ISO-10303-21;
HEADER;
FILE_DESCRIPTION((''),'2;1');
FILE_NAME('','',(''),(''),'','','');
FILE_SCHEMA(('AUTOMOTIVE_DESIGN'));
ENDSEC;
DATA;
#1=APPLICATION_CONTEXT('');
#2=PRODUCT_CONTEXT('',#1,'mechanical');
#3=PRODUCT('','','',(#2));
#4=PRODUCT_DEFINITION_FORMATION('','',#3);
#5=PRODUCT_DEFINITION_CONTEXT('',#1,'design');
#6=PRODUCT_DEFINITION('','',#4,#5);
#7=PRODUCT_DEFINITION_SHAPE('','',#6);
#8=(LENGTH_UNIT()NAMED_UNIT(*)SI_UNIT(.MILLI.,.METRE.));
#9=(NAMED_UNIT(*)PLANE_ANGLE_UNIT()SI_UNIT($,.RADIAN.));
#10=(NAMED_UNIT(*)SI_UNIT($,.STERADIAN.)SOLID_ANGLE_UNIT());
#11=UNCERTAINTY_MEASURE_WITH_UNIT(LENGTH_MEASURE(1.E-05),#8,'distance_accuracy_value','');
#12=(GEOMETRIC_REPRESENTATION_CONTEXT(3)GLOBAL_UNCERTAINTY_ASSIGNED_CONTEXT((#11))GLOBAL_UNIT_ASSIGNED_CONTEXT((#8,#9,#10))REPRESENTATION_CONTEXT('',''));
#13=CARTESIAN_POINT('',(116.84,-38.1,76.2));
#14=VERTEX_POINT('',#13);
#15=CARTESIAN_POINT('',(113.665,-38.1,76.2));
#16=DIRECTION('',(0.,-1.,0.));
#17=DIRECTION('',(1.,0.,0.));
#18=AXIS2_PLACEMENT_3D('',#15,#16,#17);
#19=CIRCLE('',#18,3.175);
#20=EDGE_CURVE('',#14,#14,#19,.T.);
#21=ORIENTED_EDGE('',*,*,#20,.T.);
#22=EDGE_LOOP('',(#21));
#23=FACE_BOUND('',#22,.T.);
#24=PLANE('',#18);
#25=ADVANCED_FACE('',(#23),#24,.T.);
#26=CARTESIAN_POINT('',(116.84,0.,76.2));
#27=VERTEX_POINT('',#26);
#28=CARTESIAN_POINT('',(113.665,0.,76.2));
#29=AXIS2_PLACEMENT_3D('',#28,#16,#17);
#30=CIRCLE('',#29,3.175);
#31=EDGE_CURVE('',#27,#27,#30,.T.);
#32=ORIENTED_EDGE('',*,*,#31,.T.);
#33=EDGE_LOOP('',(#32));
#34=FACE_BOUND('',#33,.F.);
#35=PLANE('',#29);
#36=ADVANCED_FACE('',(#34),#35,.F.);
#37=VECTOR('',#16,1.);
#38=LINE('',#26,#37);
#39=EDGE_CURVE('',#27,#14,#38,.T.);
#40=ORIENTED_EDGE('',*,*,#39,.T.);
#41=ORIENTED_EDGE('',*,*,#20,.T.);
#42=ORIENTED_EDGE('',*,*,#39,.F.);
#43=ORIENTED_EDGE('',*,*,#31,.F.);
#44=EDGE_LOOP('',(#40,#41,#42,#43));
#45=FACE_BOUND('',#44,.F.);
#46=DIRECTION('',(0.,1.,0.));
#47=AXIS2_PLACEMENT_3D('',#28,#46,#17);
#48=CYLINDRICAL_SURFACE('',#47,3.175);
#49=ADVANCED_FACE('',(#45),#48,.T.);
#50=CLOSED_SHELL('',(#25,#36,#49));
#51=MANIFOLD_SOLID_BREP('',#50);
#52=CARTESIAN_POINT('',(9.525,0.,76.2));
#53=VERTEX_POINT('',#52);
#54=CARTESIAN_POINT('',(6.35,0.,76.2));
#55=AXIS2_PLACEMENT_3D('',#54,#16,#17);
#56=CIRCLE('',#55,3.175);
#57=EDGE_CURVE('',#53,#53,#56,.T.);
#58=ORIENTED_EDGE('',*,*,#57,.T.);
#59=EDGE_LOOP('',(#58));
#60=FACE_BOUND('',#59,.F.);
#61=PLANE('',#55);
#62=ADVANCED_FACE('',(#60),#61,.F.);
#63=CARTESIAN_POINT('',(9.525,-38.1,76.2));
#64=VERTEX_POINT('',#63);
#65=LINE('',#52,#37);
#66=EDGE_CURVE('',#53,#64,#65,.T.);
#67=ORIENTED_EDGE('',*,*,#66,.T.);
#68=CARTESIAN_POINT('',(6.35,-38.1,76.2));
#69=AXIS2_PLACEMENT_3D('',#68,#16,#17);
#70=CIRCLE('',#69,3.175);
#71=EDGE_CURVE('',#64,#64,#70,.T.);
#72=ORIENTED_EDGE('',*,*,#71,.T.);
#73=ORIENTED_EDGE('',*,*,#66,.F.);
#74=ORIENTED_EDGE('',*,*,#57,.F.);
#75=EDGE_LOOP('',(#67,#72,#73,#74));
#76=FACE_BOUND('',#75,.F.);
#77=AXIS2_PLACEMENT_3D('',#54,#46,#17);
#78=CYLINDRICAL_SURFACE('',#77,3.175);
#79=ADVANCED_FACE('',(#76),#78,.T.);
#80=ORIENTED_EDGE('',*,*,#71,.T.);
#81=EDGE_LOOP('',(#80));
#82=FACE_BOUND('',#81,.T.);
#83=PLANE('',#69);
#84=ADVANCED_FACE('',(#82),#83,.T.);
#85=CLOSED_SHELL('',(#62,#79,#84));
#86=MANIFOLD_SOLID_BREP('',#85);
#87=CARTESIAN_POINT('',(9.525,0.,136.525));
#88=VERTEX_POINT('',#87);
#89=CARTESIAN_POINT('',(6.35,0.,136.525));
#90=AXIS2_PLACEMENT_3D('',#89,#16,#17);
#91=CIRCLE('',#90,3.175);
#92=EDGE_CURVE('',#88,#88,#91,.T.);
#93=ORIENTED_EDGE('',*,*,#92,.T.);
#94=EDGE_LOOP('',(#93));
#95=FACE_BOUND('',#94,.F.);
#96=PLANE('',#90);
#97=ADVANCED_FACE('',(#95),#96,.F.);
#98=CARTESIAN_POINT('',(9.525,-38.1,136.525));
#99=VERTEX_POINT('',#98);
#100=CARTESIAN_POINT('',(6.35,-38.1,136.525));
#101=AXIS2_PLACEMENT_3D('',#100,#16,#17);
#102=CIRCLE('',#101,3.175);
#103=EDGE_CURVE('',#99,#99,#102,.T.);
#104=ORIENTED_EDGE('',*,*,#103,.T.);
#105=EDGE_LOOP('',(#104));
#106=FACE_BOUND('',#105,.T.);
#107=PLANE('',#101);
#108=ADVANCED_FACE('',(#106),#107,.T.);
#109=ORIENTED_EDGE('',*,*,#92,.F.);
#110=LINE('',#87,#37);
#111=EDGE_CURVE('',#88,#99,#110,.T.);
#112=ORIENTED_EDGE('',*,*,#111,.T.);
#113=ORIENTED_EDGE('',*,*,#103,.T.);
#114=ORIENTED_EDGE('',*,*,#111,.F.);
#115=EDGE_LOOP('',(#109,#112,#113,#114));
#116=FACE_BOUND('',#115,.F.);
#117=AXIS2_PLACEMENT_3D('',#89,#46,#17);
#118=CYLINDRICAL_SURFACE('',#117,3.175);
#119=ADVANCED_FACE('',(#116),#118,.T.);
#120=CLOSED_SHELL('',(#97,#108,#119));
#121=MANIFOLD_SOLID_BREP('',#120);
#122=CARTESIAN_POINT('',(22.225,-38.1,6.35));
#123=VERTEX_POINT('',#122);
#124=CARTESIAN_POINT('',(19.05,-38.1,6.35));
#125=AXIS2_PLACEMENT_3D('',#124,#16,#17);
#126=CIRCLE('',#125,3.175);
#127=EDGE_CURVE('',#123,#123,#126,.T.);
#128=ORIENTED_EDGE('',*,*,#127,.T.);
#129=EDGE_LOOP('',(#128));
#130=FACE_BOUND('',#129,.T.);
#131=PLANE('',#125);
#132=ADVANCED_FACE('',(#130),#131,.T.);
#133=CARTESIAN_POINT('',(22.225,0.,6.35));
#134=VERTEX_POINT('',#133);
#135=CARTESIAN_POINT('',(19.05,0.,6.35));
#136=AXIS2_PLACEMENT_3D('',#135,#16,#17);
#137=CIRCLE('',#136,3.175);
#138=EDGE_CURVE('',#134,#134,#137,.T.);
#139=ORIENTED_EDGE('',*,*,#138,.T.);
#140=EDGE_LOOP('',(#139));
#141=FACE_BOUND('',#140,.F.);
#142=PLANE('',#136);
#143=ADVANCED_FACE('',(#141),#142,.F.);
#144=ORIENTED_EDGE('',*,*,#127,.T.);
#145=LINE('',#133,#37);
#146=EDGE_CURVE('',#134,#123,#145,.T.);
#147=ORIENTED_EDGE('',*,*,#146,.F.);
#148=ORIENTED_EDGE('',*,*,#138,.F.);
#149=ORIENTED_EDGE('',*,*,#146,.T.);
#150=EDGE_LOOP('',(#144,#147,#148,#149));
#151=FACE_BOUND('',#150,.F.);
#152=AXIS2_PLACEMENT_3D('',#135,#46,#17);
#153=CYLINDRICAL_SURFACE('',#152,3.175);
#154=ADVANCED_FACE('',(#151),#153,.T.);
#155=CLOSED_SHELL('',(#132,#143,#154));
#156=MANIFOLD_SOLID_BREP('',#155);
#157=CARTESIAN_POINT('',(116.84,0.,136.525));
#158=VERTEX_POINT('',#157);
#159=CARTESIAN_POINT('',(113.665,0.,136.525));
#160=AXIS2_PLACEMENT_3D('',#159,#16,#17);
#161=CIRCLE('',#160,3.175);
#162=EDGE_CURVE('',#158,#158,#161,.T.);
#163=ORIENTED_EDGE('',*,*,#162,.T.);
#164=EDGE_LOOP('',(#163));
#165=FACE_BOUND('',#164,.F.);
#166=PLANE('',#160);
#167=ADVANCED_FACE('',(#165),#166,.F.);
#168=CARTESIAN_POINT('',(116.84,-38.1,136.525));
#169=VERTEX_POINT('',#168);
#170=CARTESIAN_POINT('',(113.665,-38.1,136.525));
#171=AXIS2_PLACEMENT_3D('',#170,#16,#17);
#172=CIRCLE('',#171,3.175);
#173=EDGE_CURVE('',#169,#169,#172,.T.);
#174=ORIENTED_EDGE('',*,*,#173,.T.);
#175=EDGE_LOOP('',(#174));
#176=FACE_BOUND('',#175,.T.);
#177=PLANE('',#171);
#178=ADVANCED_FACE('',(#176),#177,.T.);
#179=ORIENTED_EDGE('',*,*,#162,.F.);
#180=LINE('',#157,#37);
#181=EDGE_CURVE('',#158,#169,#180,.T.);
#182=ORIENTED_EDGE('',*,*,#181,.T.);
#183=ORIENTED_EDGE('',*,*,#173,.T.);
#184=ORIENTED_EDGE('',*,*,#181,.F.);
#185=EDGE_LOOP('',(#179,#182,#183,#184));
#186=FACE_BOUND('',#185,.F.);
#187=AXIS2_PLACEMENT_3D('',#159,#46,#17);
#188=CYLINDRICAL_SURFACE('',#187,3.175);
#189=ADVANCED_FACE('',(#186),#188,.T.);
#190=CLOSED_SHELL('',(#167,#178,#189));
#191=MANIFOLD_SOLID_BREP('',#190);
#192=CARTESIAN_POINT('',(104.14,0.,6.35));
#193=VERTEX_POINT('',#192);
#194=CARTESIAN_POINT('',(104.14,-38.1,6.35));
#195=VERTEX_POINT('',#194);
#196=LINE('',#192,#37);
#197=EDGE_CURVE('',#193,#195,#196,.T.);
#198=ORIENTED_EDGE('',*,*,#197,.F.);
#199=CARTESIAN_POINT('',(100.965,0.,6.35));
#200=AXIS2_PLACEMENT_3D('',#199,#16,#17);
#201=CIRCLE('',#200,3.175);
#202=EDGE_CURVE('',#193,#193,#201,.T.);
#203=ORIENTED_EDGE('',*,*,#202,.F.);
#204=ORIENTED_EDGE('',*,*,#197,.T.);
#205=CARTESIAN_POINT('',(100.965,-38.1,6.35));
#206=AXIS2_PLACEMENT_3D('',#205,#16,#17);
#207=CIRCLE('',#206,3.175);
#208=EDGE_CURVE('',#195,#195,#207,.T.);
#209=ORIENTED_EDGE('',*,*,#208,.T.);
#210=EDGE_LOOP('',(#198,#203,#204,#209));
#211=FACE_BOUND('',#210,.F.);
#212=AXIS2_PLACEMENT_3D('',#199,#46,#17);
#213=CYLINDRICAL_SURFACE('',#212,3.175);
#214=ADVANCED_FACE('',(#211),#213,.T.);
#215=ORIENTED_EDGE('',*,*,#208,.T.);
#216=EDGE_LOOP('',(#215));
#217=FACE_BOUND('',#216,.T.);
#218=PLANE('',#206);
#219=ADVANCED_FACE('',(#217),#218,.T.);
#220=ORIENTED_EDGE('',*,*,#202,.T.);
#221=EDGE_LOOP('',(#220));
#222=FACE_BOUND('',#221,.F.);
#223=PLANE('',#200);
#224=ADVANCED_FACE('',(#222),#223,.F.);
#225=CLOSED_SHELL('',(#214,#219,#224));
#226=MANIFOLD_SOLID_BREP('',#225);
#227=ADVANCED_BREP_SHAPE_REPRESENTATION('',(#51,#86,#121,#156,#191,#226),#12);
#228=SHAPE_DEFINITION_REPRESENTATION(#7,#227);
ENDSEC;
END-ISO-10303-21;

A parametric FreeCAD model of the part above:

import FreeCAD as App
import Part
import Sketcher

V = App.Vector
Q = App.Units.Quantity

doc = App.newDocument("Part")
body = doc.addObject("PartDesign::Body", "Body")
body.AllowCompound = True

# Sketch on XZ plane
sketch1 = body.newObject("Sketcher::SketchObject", "Sketch")
sketch1.AttachmentSupport = (doc.getObject("XZ_Plane"), [""])
sketch1.MapMode = "FlatFace"
sketch1.addGeometry(Part.Circle(V(6.35, 76.2, 0), V(0, 0, 1), 3.175), False)
sketch1.addGeometry(Part.Circle(V(6.35, 136.525, 0), V(0, 0, 1), 3.175), False)
sketch1.addGeometry(Part.Circle(V(19.05, 6.35, 0), V(0, 0, 1), 3.175), False)
sketch1.addGeometry(Part.Circle(V(100.965, 6.35, 0), V(0, 0, 1), 3.175), False)
sketch1.addGeometry(Part.Circle(V(113.665, 76.2, 0), V(0, 0, 1), 3.175), False)
sketch1.addGeometry(Part.Circle(V(113.665, 136.525, 0), V(0, 0, 1), 3.175), False)
sketch1.addConstraint(Sketcher.Constraint("Equal", 0, 1))
sketch1.addConstraint(Sketcher.Constraint("Equal", 1, 2))
sketch1.addConstraint(Sketcher.Constraint("Equal", 2, 3))
sketch1.addConstraint(Sketcher.Constraint("Equal", 3, 4))
sketch1.addConstraint(Sketcher.Constraint("Equal", 4, 5))
sketch1.addConstraint(Sketcher.Constraint("Horizontal", 2, 3, 3, 3))
sketch1.addConstraint(Sketcher.Constraint("Horizontal", 0, 3, 4, 3))
sketch1.addConstraint(Sketcher.Constraint("Horizontal", 1, 3, 5, 3))
sketch1.addConstraint(Sketcher.Constraint("Vertical", 0, 3, 1, 3))
sketch1.addConstraint(Sketcher.Constraint("Vertical", 4, 3, 5, 3))
sketch1.addConstraint(Sketcher.Constraint("Diameter", 0, Q("0.25 in")))
sketch1.addConstraint(Sketcher.Constraint("DistanceY", -1, 1, 0, 3, Q("3 in")))
sketch1.addConstraint(Sketcher.Constraint("DistanceX", 0, 3, 2, 3, Q("0.5 in")))
sketch1.addConstraint(Sketcher.Constraint("DistanceX", 3, 3, 4, 3, Q("0.5 in")))
sketch1.addConstraint(Sketcher.Constraint("DistanceX", -1, 1, 0, 3, Q("0.25 in")))
sketch1.addConstraint(Sketcher.Constraint("DistanceY", -1, 1, 2, 3, Q("0.25 in")))
sketch1.addConstraint(Sketcher.Constraint("DistanceY", -1, 1, 1, 3, Q("5.375 in")))
sketch1.addConstraint(Sketcher.Constraint("DistanceX", -1, 1, 3, 3, Q("3.975 in")))
pad1 = body.newObject("PartDesign::Pad", "Pad")
pad1.Profile = sketch1
pad1.Length = Q("1.5 in")

doc.recompute()
